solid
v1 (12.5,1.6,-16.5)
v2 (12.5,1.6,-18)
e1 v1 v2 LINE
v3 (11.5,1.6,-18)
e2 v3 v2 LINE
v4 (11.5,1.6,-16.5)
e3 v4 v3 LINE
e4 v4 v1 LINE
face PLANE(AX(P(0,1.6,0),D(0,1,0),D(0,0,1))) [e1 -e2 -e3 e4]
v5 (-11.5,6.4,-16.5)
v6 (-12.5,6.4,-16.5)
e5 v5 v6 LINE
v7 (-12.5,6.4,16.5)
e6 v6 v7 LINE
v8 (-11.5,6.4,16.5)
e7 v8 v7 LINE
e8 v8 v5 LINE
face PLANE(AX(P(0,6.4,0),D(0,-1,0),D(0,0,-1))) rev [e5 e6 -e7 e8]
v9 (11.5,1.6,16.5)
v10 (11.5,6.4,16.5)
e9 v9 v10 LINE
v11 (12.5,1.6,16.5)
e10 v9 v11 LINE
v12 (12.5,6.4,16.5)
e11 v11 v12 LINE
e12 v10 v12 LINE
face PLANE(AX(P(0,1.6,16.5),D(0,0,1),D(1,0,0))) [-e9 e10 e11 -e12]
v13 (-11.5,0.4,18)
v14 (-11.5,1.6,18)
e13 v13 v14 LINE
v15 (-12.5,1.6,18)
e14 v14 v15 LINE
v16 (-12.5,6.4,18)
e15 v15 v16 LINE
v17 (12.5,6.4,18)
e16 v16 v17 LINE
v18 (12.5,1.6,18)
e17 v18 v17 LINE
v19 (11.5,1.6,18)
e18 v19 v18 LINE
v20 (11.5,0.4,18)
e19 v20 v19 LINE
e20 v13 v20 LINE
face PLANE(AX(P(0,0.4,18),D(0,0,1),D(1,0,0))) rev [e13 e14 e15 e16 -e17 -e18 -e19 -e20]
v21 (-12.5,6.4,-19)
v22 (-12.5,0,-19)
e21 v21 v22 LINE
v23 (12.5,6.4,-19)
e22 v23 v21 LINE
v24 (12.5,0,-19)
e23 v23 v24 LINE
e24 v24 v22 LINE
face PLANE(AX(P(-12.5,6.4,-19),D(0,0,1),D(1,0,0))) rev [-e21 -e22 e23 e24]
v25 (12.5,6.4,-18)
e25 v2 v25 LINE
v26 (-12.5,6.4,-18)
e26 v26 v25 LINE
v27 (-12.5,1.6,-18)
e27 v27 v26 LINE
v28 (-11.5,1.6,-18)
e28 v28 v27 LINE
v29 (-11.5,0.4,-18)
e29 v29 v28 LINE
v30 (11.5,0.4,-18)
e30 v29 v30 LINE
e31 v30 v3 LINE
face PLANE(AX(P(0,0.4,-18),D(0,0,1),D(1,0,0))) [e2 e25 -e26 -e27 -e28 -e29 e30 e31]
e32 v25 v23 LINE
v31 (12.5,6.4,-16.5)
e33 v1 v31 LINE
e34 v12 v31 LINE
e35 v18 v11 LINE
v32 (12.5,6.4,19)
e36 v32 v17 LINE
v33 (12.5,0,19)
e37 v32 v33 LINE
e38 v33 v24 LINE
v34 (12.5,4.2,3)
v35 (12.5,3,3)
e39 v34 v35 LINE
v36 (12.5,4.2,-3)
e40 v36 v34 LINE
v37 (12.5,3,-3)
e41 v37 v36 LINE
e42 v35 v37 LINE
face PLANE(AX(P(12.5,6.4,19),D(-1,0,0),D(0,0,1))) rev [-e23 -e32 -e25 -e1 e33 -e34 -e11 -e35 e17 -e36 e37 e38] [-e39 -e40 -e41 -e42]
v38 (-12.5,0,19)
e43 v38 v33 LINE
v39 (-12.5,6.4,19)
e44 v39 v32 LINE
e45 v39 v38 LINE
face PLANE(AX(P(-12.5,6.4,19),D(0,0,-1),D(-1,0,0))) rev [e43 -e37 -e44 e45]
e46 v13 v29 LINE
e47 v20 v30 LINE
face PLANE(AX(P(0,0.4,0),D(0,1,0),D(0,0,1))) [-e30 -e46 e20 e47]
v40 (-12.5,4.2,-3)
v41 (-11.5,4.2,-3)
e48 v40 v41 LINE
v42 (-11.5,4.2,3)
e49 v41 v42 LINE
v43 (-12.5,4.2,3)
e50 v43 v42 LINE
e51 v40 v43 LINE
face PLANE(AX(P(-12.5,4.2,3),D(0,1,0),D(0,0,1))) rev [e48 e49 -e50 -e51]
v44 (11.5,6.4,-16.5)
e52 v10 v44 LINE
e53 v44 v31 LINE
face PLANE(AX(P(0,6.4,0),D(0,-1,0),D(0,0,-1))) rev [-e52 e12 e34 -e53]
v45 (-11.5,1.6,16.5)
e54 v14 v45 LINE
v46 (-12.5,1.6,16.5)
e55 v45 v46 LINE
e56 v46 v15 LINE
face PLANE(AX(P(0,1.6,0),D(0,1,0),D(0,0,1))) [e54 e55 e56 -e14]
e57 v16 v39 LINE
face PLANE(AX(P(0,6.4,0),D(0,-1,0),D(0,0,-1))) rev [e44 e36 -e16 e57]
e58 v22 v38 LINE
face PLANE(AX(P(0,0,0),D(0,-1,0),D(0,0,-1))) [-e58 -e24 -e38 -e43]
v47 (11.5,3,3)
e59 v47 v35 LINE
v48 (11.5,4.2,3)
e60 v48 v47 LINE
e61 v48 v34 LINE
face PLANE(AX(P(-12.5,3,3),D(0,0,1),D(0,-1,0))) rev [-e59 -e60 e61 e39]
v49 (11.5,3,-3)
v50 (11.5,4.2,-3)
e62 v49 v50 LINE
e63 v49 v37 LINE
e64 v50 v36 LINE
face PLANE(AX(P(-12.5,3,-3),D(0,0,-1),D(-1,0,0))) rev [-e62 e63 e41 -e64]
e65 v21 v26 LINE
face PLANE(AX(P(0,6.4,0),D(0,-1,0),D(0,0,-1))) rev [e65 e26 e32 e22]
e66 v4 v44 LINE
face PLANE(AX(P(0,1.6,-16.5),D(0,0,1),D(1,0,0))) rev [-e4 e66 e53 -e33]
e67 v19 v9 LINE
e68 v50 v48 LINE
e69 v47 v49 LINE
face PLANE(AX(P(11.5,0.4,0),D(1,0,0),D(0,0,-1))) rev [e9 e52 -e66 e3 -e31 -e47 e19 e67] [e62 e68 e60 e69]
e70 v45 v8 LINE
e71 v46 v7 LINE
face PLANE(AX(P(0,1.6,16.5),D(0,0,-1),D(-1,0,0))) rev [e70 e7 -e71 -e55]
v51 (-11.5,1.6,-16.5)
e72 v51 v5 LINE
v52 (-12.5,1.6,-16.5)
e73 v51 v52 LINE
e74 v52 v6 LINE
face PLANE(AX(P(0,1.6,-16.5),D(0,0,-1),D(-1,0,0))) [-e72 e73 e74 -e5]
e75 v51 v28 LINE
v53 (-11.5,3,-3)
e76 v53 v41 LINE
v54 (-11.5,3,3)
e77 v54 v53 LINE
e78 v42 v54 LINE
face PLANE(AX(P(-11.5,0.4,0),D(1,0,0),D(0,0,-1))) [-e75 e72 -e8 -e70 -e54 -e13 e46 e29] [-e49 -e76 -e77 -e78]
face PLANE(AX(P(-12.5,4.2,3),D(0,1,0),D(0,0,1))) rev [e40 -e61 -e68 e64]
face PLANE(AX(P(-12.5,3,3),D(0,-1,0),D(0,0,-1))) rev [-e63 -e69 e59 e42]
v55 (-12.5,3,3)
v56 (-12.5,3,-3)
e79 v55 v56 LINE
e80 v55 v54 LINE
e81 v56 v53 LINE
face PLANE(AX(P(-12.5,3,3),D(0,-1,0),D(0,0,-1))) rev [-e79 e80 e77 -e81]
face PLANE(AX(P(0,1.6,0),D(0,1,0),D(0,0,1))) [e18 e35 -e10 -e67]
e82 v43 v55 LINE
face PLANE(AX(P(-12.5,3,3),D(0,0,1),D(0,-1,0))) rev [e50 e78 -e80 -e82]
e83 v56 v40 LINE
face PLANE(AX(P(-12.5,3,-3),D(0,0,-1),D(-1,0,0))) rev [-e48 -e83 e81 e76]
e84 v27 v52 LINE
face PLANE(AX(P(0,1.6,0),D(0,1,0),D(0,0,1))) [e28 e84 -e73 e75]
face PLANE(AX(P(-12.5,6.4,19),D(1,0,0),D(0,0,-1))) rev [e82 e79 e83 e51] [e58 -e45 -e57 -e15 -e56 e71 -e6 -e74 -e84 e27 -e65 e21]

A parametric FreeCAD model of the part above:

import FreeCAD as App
import Part
import Sketcher
from FreeCAD import Vector


def add_polygon(sketch, points):
    """Adds a closed chain of lines whose ends are joined by coincident constraints."""
    first, n = sketch.GeometryCount, len(points)
    for a, b in zip(points, points[1:] + points[:1]):
        sketch.addGeometry(Part.LineSegment(App.Vector(*a, 0), App.Vector(*b, 0)), False)
    for i in range(n):
        sketch.addConstraint(Sketcher.Constraint("Coincident", first + i, 2, first + (i + 1) % n, 1))

doc = App.newDocument("Part")
body = doc.addObject("PartDesign::Body", "Body")

sketch1 = body.newObject("Sketcher::SketchObject", "Sketch")
sketch1.AttachmentSupport = (doc.getObject("XZ_Plane"), [""])
sketch1.MapMode = "FlatFace"
add_polygon(sketch1, [(-12, -19), (-12, 19), (12, 19), (12, -19)])
sketch1.addConstraint([
    Sketcher.Constraint("Vertical", 0),
    Sketcher.Constraint("Horizontal", 1),
    Sketcher.Constraint("Vertical", 2),
    Sketcher.Constraint("Horizontal", 3),
    Sketcher.Constraint("Symmetric", 0, 2, 2, 2, -1, 1),
    Sketcher.Constraint("DistanceX", 1, 1, 1, 2, 25.0),
    Sketcher.Constraint("DistanceY", 0, 1, 0, 2, 38.0),
])
pad1 = body.newObject("PartDesign::Pad", "Pad")
pad1.Profile = sketch1
pad1.Length = 6.4
pad1.Reversed = True

sketch2 = body.newObject("Sketcher::SketchObject", "Sketch001")
sketch2.AttachmentSupport = (doc.getObject("XZ_Plane"), [""])
sketch2.MapMode = "FlatFace"
sketch2.AttachmentOffset = App.Placement(Vector(0, 0, -6.4), App.Rotation())
add_polygon(sketch2, [(-12, -18), (-12, 18), (12, 18), (12, -18)])
sketch2.addConstraint([
    Sketcher.Constraint("Vertical", 0),
    Sketcher.Constraint("Horizontal", 1),
    Sketcher.Constraint("Vertical", 2),
    Sketcher.Constraint("Horizontal", 3),
    Sketcher.Constraint("Symmetric", 0, 2, 2, 2, -1, 1),
    Sketcher.Constraint("DistanceX", 1, 1, 1, 2, 23.0),
    Sketcher.Constraint("DistanceY", 0, 1, 0, 2, 36.0),
])
pocket1 = body.newObject("PartDesign::Pocket", "Pocket")
pocket1.Profile = sketch2
pocket1.Length = 6
pocket1.Reversed = True

sketch3 = body.newObject("Sketcher::SketchObject", "Sketch002")
sketch3.AttachmentSupport = (doc.getObject("XZ_Plane"), [""])
sketch3.MapMode = "FlatFace"
sketch3.AttachmentOffset = App.Placement(Vector(0, 0, -6.4), App.Rotation())
add_polygon(sketch3, [(-12.5, -18), (-12.5, -16.5), (-11.5, -16.5), (-11.5, -18)])
add_polygon(sketch3, [(11.5, -18), (11.5, -16.5), (12.5, -16.5), (12.5, -18)])
add_polygon(sketch3, [(-12.5, 16.5), (-12.5, 18), (-11.5, 18), (-11.5, 16.5)])
add_polygon(sketch3, [(11.5, 16.5), (11.5, 18), (12.5, 18), (12.5, 16.5)])
sketch3.addConstraint([
    Sketcher.Constraint("Vertical", 0),
    Sketcher.Constraint("Horizontal", 1),
    Sketcher.Constraint("Vertical", 2),
    Sketcher.Constraint("Horizontal", 3),
    Sketcher.Constraint("Vertical", 4),
    Sketcher.Constraint("Horizontal", 5),
    Sketcher.Constraint("Vertical", 6),
    Sketcher.Constraint("Horizontal", 7),
    Sketcher.Constraint("Vertical", 8),
    Sketcher.Constraint("Horizontal", 9),
    Sketcher.Constraint("Vertical", 10),
    Sketcher.Constraint("Horizontal", 11),
    Sketcher.Constraint("Vertical", 12),
    Sketcher.Constraint("Horizontal", 13),
    Sketcher.Constraint("Vertical", 14),
    Sketcher.Constraint("Horizontal", 15),
    Sketcher.Constraint("Symmetric", 6, 2, 8, 2, -1, 1),
    Sketcher.Constraint("Symmetric", 4, 2, 10, 2, -1, 1),
    Sketcher.Constraint("Symmetric", 2, 2, 12, 2, -1, 1),
    Sketcher.Constraint("Symmetric", 0, 2, 14, 2, -1, 1),
    Sketcher.Constraint("Symmetric", 1, 2, 4, 2, -2),
    Sketcher.Constraint("Symmetric", 3, 2, 6, 2, -2),
    Sketcher.Constraint("DistanceX", 1, 1, 1, 2, 1.0),
    Sketcher.Constraint("DistanceY", 0, 1, 0, 2, 1.5),
    Sketcher.Constraint("DistanceY", 2, 2, -1, 1, 18.0),
    Sketcher.Constraint("DistanceX", 1, 2, 4, 2, 23.0),
])
pocket2 = body.newObject("PartDesign::Pocket", "Pocket001")
pocket2.Profile = sketch3
pocket2.Length = 4.8
pocket2.Reversed = True

sketch4 = body.newObject("Sketcher::SketchObject", "Sketch003")
sketch4.AttachmentSupport = (doc.getObject("YZ_Plane"), [""])
sketch4.MapMode = "FlatFace"
add_polygon(sketch4, [(4.2, 3), (3, 3), (3, -3), (4.2, -3)])
sketch4.addConstraint([
    Sketcher.Constraint("Horizontal", 0),
    Sketcher.Constraint("Vertical", 1),
    Sketcher.Constraint("Horizontal", 2),
    Sketcher.Constraint("Vertical", 3),
    Sketcher.Constraint("DistanceY", 1, 2, 1, 1, 6.0),
    Sketcher.Constraint("DistanceX", 0, 2, 0, 1, 1.2),
    Sketcher.Constraint("DistanceX", -1, 1, 0, 2, 3.0),
    Sketcher.Constraint("DistanceY", -1, 1, 0, 2, 3.0),
])
pocket3 = body.newObject("PartDesign::Pocket", "Pocket002")
pocket3.Profile = sketch4
pocket3.Type = "ThroughAll"
pocket3.Midplane = True

doc.recompute()
